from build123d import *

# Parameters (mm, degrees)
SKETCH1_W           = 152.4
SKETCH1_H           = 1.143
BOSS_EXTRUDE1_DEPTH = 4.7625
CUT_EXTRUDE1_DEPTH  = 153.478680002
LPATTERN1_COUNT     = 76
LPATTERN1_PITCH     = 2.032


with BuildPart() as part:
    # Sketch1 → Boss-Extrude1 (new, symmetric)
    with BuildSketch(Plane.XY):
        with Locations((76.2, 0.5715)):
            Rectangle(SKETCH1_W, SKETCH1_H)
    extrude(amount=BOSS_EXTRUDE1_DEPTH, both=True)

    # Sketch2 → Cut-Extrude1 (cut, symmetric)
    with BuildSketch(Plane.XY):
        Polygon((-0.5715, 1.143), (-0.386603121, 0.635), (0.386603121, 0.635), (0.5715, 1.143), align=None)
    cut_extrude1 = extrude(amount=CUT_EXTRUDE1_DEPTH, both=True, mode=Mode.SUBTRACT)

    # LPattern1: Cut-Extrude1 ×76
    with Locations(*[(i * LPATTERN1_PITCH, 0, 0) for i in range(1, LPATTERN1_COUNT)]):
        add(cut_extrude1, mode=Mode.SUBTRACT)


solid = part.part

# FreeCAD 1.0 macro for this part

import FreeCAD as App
import Part
import Sketcher
from FreeCAD import Vector
Q = App.Units.Quantity


def add_polygon(sketch, points):
    """Adds a closed chain of lines whose ends are joined by coincident constraints."""
    first, n = sketch.GeometryCount, len(points)
    for a, b in zip(points, points[1:] + points[:1]):
        sketch.addGeometry(Part.LineSegment(App.Vector(*a, 0), App.Vector(*b, 0)), False)
    for i in range(n):
        sketch.addConstraint(Sketcher.Constraint("Coincident", first + i, 2, first + (i + 1) % n, 1))

doc = App.newDocument("Part")
body = doc.addObject("PartDesign::Body", "Body")

# Sketch on XY plane
sketch1 = body.newObject("Sketcher::SketchObject", "Sketch")
sketch1.AttachmentSupport = (doc.getObject("XY_Plane"), [""])
sketch1.MapMode = "FlatFace"
add_polygon(sketch1, [(0, 1.1), (0, 0), (152.4, 0), (152.4, 1.1)])  # lines 0-3
sketch1.addConstraint([
    Sketcher.Constraint("Vertical", 0),
    Sketcher.Constraint("Horizontal", 1),
    Sketcher.Constraint("Vertical", 2),
    Sketcher.Constraint("Horizontal", 3),
    Sketcher.Constraint("Coincident", 0, 2, -1, 1),
    Sketcher.Constraint("DistanceX", 1, 1, 1, 2, Q("6 in")),
    Sketcher.Constraint("DistanceY", 0, 2, 0, 1, Q("0.045 in")),
])
pad1 = body.newObject("PartDesign::Pad", "Pad")
pad1.Profile = sketch1
pad1.Length = Q("0.375 in")
pad1.Midplane = True

# Sketch on XY plane
sketch2 = body.newObject("Sketcher::SketchObject", "Sketch001")
sketch2.AttachmentSupport = (doc.getObject("XY_Plane"), [""])
sketch2.MapMode = "FlatFace"
add_polygon(sketch2, [(-0.6, 1.1), (-0.4, 0.6), (0.4, 0.6), (0.6, 1.1)])  # lines 0-3
sketch2.addConstraint([
    Sketcher.Constraint("Horizontal", 1),
    Sketcher.Constraint("Horizontal", 3),
    Sketcher.Constraint("Equal", 0, 2),
    Sketcher.Constraint("Angle", 0, Q("-70 deg")),
    Sketcher.Constraint("DistanceX", 3, 2, 3, 1, Q("0.045 in")),
    Sketcher.Constraint("DistanceY", 1, 2, 2, 2, Q("0.02 in")),
    Sketcher.Constraint("DistanceY", -1, 1, 0, 2, Q("0.025 in")),
    Sketcher.Constraint("DistanceX", -1, 1, 2, 2, Q("0.0225 in")),
])
pocket1 = body.newObject("PartDesign::Pocket", "Pocket")
pocket1.Profile = sketch2
pocket1.Length = 306.95736
pocket1.Midplane = True
doc.recompute()

linearpattern = body.newObject("PartDesign::LinearPattern", "LinearPattern")
linearpattern.Originals = [pocket1]
linearpattern.Direction = (doc.getObject("X_Axis"), [""])
linearpattern.Mode = "offset"
linearpattern.Offset = Q("0.08 in")
linearpattern.Occurrences = 76
body.Tip = linearpattern

doc.recompute()
